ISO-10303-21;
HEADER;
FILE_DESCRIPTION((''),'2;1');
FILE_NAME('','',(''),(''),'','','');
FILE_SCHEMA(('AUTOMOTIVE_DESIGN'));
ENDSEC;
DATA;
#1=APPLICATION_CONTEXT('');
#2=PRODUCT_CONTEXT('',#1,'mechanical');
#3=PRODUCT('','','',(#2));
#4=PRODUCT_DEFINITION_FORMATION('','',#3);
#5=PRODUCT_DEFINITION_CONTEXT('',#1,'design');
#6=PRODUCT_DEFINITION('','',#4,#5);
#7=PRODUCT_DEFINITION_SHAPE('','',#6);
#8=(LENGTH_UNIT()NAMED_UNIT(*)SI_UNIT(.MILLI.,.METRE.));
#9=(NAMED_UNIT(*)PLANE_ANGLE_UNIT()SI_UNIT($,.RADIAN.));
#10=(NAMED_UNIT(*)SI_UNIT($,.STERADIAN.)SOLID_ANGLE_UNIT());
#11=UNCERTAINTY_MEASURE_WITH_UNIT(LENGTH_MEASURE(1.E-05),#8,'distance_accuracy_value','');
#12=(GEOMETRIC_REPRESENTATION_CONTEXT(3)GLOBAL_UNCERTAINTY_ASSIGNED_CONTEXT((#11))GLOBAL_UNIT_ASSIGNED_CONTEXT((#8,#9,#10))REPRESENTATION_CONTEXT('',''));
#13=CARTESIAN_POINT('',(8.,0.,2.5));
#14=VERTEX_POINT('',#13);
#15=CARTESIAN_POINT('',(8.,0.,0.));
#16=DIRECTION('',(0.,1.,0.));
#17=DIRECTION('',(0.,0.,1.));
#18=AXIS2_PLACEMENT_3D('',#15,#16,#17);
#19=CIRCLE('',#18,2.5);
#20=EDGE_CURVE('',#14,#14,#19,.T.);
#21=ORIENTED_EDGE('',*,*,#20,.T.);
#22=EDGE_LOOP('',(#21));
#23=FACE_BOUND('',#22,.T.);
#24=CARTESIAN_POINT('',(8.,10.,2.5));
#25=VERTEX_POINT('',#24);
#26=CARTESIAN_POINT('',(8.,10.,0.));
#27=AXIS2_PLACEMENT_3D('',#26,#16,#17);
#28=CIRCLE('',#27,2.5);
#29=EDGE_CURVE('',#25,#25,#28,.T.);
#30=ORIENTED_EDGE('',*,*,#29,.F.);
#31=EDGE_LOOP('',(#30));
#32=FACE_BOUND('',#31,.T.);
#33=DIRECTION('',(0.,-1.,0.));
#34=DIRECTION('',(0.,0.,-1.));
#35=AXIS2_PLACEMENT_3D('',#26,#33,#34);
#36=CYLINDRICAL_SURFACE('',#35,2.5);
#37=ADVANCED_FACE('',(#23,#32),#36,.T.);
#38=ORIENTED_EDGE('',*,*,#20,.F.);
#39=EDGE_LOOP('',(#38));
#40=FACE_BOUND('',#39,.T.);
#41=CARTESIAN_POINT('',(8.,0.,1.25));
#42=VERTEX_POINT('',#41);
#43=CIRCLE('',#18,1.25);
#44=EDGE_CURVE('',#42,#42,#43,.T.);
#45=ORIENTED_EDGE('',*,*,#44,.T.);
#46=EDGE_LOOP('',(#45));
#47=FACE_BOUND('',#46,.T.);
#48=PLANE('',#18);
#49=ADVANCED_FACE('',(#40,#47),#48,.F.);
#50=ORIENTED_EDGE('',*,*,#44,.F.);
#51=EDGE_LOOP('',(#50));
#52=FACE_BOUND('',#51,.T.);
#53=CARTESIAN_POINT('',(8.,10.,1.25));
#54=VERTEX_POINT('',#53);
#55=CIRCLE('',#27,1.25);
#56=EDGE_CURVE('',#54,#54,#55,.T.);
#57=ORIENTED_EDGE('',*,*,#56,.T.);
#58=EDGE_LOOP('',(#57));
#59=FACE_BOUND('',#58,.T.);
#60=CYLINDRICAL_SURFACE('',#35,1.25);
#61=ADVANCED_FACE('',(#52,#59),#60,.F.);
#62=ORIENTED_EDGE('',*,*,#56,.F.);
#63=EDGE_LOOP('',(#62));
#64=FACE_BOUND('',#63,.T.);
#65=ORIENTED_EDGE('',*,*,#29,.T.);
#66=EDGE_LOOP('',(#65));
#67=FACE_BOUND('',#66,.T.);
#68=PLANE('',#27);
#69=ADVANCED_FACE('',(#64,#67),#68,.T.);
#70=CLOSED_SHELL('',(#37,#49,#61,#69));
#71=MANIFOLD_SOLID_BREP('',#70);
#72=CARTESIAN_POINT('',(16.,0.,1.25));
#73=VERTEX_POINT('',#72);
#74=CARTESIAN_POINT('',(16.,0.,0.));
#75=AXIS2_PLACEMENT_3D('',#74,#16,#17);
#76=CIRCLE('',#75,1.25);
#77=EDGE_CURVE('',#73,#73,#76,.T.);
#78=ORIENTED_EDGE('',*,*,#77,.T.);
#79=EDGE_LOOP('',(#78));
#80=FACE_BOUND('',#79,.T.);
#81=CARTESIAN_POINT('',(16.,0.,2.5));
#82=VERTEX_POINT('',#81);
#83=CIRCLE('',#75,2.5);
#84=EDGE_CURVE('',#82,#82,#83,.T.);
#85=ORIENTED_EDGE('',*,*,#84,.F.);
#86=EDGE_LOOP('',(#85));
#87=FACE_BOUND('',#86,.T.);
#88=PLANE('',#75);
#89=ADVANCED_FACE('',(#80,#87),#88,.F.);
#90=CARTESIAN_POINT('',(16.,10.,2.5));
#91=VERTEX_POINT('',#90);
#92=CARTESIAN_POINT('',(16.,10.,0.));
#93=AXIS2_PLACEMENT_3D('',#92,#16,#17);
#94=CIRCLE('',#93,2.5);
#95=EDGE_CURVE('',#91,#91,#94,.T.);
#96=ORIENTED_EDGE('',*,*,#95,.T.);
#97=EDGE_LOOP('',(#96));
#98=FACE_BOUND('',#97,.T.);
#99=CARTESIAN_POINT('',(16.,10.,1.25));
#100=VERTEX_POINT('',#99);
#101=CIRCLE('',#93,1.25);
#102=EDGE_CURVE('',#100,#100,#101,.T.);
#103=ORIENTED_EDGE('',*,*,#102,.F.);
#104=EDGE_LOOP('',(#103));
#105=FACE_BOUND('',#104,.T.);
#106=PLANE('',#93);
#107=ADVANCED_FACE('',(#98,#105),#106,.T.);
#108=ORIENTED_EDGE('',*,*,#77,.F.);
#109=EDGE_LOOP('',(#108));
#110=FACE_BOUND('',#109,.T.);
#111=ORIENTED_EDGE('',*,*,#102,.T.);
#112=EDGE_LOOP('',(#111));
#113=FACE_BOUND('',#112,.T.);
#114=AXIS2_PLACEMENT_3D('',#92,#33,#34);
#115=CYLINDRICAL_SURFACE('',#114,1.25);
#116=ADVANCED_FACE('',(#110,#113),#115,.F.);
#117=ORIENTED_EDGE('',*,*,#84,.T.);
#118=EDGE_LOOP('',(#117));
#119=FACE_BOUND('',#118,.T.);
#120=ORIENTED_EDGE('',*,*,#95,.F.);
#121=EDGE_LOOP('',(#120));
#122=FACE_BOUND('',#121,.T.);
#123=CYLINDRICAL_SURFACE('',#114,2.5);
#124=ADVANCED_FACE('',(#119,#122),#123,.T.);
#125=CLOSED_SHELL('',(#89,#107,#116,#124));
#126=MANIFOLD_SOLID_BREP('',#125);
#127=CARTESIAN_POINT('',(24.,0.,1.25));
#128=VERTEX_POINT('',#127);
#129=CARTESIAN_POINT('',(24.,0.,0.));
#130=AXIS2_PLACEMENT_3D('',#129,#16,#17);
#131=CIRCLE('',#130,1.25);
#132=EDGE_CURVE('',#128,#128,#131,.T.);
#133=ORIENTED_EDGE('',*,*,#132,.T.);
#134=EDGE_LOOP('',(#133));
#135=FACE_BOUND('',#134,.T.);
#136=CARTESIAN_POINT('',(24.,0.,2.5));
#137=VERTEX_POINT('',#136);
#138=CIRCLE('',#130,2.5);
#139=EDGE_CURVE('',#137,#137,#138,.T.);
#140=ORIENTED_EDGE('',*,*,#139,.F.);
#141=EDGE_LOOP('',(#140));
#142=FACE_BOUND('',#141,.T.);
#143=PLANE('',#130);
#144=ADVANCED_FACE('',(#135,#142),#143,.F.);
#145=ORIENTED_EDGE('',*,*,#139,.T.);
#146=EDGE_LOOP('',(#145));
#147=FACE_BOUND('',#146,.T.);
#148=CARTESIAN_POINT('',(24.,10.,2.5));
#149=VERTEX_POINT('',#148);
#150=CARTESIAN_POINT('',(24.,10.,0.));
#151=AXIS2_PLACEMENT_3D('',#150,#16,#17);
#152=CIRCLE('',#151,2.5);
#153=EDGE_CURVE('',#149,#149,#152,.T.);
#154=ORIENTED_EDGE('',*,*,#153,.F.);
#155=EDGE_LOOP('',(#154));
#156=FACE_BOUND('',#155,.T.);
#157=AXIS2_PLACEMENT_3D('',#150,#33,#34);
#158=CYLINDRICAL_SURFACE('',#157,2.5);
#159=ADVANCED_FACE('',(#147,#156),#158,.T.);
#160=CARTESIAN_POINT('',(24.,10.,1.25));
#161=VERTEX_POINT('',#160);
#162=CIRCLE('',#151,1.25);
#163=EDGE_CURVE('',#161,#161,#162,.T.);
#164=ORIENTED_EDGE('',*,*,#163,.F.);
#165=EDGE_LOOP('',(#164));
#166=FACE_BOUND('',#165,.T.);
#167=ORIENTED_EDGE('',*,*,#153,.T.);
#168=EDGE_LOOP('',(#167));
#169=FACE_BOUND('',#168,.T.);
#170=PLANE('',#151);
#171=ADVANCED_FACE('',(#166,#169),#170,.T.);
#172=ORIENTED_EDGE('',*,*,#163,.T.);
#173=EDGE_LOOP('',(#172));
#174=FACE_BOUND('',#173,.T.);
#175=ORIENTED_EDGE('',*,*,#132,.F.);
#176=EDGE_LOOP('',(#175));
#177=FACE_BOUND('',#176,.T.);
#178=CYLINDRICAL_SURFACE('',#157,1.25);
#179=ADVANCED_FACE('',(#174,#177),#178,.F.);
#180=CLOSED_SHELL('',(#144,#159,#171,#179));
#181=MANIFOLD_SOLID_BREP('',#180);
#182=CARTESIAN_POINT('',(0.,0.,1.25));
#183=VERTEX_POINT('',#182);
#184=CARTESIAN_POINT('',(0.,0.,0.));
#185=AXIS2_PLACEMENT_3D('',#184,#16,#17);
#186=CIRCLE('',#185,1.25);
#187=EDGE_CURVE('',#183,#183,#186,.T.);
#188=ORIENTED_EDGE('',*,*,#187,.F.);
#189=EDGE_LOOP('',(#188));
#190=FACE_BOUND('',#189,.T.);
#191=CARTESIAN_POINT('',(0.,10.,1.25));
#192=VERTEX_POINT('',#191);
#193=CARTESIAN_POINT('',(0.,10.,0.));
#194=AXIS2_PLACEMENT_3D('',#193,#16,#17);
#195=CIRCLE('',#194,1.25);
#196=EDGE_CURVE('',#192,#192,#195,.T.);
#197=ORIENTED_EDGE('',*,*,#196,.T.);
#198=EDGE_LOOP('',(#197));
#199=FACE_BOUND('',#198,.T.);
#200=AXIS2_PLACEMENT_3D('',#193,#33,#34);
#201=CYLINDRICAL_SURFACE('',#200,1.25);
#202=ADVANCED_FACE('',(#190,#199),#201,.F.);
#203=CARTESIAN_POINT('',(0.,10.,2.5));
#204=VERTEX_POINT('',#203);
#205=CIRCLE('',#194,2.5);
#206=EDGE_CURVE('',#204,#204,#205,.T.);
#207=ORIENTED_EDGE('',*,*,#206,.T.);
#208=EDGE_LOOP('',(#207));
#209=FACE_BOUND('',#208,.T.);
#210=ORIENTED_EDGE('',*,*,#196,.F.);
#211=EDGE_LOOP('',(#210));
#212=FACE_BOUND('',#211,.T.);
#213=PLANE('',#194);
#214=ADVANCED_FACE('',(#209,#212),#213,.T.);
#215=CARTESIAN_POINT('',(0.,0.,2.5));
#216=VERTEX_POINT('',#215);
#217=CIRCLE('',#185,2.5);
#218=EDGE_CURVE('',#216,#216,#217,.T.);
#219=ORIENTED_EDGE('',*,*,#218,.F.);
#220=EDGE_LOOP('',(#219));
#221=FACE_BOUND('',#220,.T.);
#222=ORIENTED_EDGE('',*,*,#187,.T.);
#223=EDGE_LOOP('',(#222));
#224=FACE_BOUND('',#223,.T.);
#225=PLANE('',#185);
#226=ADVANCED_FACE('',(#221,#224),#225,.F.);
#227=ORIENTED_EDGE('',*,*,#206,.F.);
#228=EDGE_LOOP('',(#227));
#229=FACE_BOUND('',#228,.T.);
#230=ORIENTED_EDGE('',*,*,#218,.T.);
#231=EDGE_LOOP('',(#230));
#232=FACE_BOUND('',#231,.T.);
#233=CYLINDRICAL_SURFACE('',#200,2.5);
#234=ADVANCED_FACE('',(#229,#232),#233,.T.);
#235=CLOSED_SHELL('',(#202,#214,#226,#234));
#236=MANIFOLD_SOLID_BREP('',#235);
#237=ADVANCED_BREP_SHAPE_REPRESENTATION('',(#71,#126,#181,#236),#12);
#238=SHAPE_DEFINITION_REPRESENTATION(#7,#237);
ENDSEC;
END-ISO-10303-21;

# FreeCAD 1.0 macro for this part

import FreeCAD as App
import Part
import Sketcher

V = App.Vector
Q = App.Units.Quantity

doc = App.newDocument("Part")
body = doc.addObject("PartDesign::Body", "Body")

sketch1 = body.newObject("Sketcher::SketchObject", "Sketch")
sketch1.AttachmentSupport = (doc.getObject("XZ_Plane"), [""])
sketch1.MapMode = "FlatFace"
sketch1.addGeometry(Part.Circle(V(0, 0, 0), V(0, 0, 1), 2.5), False)
sketch1.addGeometry(Part.Circle(V(0, 0, 0), V(0, 0, 1), 1.2), False)
sketch1.addConstraint(Sketcher.Constraint("Coincident", 0, 3, -1, 1))
sketch1.addConstraint(Sketcher.Constraint("Coincident", 1, 3, -1, 1))
sketch1.addConstraint(Sketcher.Constraint("Diameter", 0, Q("5 mm")))
sketch1.addConstraint(Sketcher.Constraint("Diameter", 1, Q("2.5 mm")))
pad1 = body.newObject("PartDesign::Pad", "Pad")
pad1.Profile = sketch1
pad1.Length = 10
pad1.Reversed = True
body2 = doc.addObject("PartDesign::Body", "Body001")

sketch2 = body2.newObject("Sketcher::SketchObject", "Sketch001")
sketch2.AttachmentSupport = (doc.getObject("XZ_Plane001"), [""])
sketch2.MapMode = "FlatFace"
sketch2.addGeometry(Part.Circle(V(8, 0, 0), V(0, 0, 1), 2.5), False)
sketch2.addGeometry(Part.Circle(V(8, 0, 0), V(0, 0, 1), 1.2), False)
sketch2.addConstraint(Sketcher.Constraint("Coincident", 1, 3, 0, 3))
sketch2.addConstraint(Sketcher.Constraint("PointOnObject", 0, 3, -1))
sketch2.addConstraint(Sketcher.Constraint("Diameter", 0, Q("5 mm")))
sketch2.addConstraint(Sketcher.Constraint("Diameter", 1, Q("2.5 mm")))
sketch2.addConstraint(Sketcher.Constraint("DistanceX", -1, 1, 0, 3, Q("8 mm")))
pad2 = body2.newObject("PartDesign::Pad", "Pad001")
pad2.Profile = sketch2
pad2.Length = 10
pad2.Reversed = True
body3 = doc.addObject("PartDesign::Body", "Body002")

sketch3 = body3.newObject("Sketcher::SketchObject", "Sketch002")
sketch3.AttachmentSupport = (doc.getObject("XZ_Plane002"), [""])
sketch3.MapMode = "FlatFace"
sketch3.addGeometry(Part.Circle(V(16, 0, 0), V(0, 0, 1), 2.5), False)
sketch3.addGeometry(Part.Circle(V(16, 0, 0), V(0, 0, 1), 1.2), False)
sketch3.addConstraint(Sketcher.Constraint("Coincident", 1, 3, 0, 3))
sketch3.addConstraint(Sketcher.Constraint("PointOnObject", 0, 3, -1))
sketch3.addConstraint(Sketcher.Constraint("Diameter", 0, Q("5 mm")))
sketch3.addConstraint(Sketcher.Constraint("Diameter", 1, Q("2.5 mm")))
sketch3.addConstraint(Sketcher.Constraint("DistanceX", -1, 1, 0, 3, Q("16 mm")))
pad3 = body3.newObject("PartDesign::Pad", "Pad002")
pad3.Profile = sketch3
pad3.Length = 10
pad3.Reversed = True
body4 = doc.addObject("PartDesign::Body", "Body003")

sketch4 = body4.newObject("Sketcher::SketchObject", "Sketch003")
sketch4.AttachmentSupport = (doc.getObject("XZ_Plane003"), [""])
sketch4.MapMode = "FlatFace"
sketch4.addGeometry(Part.Circle(V(24, 0, 0), V(0, 0, 1), 2.5), False)
sketch4.addGeometry(Part.Circle(V(24, 0, 0), V(0, 0, 1), 1.2), False)
sketch4.addConstraint(Sketcher.Constraint("Coincident", 1, 3, 0, 3))
sketch4.addConstraint(Sketcher.Constraint("PointOnObject", 0, 3, -1))
sketch4.addConstraint(Sketcher.Constraint("Diameter", 0, Q("5 mm")))
sketch4.addConstraint(Sketcher.Constraint("Diameter", 1, Q("2.5 mm")))
sketch4.addConstraint(Sketcher.Constraint("DistanceX", -1, 1, 0, 3, Q("24 mm")))
pad4 = body4.newObject("PartDesign::Pad", "Pad003")
pad4.Profile = sketch4
pad4.Length = 10
pad4.Reversed = True

doc.recompute()
